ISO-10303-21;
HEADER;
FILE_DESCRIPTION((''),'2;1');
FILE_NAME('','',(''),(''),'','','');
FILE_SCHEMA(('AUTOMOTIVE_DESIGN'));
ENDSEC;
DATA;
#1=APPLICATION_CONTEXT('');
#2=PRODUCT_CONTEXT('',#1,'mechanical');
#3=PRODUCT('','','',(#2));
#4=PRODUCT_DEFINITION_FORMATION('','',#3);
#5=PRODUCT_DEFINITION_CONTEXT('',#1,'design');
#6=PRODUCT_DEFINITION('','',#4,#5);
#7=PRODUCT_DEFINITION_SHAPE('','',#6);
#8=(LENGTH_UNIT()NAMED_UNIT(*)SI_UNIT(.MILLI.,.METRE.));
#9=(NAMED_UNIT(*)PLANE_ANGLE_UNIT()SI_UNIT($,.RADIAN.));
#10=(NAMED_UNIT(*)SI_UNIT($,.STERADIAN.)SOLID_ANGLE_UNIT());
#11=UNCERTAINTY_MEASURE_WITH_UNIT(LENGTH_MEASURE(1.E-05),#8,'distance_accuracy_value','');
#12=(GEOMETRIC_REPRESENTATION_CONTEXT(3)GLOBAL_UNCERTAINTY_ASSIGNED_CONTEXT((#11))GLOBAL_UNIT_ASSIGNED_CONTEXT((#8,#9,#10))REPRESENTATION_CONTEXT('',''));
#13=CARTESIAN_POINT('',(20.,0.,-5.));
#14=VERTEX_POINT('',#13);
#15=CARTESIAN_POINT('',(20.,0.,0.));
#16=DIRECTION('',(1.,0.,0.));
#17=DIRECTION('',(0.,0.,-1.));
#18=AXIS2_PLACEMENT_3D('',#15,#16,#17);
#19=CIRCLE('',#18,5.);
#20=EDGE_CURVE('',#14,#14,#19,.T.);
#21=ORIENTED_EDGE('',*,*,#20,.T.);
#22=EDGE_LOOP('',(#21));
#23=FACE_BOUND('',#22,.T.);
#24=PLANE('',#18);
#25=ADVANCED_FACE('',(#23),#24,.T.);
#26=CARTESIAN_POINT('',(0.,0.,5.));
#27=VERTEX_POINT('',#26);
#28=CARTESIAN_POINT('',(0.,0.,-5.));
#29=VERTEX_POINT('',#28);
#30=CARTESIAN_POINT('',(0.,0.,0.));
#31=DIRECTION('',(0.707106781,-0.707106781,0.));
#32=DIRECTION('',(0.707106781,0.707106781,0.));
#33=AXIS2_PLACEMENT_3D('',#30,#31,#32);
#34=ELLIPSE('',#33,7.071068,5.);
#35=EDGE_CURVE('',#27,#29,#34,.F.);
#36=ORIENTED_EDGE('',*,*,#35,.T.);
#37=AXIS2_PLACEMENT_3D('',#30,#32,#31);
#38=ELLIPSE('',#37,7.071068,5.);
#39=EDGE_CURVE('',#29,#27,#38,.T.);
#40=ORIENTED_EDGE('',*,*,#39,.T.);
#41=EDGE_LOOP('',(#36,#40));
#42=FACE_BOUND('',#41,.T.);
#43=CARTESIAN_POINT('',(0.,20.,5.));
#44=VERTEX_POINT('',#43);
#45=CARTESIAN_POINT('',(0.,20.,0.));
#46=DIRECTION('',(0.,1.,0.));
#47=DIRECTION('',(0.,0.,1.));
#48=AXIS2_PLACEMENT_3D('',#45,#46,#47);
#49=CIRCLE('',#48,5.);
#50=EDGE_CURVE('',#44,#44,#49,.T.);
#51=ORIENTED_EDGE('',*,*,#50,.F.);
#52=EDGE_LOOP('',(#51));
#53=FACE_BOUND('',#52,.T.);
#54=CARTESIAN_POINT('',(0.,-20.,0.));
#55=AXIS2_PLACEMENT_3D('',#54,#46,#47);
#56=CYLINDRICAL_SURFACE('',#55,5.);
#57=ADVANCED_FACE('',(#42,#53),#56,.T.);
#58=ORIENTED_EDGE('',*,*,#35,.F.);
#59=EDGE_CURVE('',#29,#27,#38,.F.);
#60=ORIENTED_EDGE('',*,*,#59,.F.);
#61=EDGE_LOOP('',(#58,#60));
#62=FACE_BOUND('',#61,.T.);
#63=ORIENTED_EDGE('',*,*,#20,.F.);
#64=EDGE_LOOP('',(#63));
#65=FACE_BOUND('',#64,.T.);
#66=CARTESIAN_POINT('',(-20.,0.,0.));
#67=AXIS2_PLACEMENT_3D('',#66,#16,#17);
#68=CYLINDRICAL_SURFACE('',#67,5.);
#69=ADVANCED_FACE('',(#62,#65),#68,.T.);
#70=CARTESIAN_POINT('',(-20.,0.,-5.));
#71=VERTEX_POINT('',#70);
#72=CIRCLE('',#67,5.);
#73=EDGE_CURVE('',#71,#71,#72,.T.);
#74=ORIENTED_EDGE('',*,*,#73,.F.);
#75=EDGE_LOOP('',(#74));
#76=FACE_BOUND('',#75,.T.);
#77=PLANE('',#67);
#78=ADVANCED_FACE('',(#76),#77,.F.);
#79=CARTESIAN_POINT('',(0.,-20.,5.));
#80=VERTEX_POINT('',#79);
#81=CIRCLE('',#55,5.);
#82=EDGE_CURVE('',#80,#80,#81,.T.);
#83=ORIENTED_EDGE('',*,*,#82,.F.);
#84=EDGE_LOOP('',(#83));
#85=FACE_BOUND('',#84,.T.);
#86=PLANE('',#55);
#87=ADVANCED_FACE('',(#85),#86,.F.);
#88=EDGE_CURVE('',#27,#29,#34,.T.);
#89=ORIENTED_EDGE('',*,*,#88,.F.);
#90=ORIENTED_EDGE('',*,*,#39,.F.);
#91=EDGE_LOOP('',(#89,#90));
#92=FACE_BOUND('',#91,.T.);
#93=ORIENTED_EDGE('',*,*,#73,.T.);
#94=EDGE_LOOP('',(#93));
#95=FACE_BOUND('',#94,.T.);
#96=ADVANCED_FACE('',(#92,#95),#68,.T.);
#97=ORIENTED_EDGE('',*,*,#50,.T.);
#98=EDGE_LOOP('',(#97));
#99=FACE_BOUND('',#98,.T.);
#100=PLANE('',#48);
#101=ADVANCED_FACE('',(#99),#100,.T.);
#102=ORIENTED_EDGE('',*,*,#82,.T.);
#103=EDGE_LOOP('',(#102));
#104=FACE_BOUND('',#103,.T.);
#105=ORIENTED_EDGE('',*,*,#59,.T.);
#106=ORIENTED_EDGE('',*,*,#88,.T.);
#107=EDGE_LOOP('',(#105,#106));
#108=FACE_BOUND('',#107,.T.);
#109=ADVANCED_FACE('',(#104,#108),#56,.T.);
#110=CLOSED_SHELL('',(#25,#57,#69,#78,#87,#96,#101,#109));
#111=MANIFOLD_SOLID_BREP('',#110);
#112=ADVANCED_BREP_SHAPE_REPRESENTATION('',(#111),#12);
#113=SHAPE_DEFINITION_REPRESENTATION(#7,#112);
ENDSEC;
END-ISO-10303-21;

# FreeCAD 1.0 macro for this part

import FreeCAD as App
import Part
import Sketcher
from FreeCAD import Vector
Q = App.Units.Quantity

doc = App.newDocument("Part")
body = doc.addObject("PartDesign::Body", "Body")

# Sketch on YZ plane
sketch1 = body.newObject("Sketcher::SketchObject", "Sketch")
sketch1.AttachmentSupport = (doc.getObject("YZ_Plane"), [""])
sketch1.MapMode = "FlatFace"
sketch1.addGeometry(Part.Circle(Vector(0, 0, 0), Vector(0, 0, 1), 5), False)
sketch1.addConstraint(Sketcher.Constraint("Coincident", 0, 3, -1, 1))
sketch1.addConstraint(Sketcher.Constraint("Diameter", 0, Q("10 mm")))
pad1 = body.newObject("PartDesign::Pad", "Pad")
pad1.Profile = sketch1
pad1.Type = "TwoLengths"
pad1.Length = 20
pad1.Length2 = 20

# Sketch on XZ plane
sketch2 = body.newObject("Sketcher::SketchObject", "Sketch001")
sketch2.AttachmentSupport = (doc.getObject("XZ_Plane"), [""])
sketch2.MapMode = "FlatFace"
sketch2.addGeometry(Part.Circle(Vector(0, 0, 0), Vector(0, 0, 1), 5), False)
sketch2.addConstraint(Sketcher.Constraint("Coincident", 0, 3, -1, 1))
sketch2.addConstraint(Sketcher.Constraint("Diameter", 0, Q("10 mm")))
pad2 = body.newObject("PartDesign::Pad", "Pad001")
pad2.Profile = sketch2
pad2.Type = "TwoLengths"
pad2.Length = 20
pad2.Length2 = 20
pad2.Reversed = True

doc.recompute()
